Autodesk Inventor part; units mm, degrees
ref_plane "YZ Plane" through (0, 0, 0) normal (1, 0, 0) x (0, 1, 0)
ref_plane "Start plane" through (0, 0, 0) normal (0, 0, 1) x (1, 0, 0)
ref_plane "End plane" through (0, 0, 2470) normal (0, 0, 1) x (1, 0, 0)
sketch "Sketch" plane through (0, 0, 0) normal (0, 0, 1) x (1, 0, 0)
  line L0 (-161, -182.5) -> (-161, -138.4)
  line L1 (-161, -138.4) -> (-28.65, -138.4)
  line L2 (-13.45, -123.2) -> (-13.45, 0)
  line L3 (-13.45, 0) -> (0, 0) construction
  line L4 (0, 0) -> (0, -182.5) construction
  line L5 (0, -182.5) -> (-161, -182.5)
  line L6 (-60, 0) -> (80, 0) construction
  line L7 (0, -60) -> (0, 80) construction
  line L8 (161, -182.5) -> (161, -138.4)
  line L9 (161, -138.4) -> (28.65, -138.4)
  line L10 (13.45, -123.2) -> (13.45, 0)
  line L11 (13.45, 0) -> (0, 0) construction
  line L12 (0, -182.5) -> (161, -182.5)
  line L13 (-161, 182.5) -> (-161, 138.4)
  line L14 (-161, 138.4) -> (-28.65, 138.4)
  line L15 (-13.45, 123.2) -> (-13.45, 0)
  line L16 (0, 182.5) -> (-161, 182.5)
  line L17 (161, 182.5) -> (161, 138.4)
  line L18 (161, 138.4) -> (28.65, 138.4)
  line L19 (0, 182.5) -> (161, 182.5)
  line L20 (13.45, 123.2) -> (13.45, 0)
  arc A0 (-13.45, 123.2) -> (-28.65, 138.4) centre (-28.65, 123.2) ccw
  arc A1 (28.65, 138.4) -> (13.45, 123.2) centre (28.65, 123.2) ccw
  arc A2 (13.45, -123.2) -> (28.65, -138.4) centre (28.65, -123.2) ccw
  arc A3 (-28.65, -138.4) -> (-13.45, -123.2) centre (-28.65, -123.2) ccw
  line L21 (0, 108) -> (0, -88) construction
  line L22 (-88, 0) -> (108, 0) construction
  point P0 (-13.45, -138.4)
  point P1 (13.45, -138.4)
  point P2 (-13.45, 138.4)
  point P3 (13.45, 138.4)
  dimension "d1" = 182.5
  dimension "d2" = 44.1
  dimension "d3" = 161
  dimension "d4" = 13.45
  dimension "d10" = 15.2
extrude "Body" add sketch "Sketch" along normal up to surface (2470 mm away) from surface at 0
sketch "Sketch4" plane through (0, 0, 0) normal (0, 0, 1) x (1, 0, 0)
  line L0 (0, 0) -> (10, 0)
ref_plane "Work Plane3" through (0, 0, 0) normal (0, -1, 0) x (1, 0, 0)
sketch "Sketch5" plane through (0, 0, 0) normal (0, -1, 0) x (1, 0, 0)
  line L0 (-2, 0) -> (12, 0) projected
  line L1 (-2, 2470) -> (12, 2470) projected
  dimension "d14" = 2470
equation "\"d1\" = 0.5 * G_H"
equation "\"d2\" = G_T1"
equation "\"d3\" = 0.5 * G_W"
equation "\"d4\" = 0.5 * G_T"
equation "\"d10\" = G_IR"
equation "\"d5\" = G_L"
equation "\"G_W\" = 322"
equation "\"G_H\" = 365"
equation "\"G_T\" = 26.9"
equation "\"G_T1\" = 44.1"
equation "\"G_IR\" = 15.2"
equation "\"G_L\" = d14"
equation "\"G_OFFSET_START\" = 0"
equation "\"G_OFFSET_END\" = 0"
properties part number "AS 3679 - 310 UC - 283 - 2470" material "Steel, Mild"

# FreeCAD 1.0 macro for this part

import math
import FreeCAD as App
import Part
import Sketcher

V = App.Vector

doc = App.newDocument("Part")
body = doc.addObject("PartDesign::Body", "Body")

# Sketch on XY plane
sketch1 = doc.addObject("Sketcher::SketchObject", "Sketch")
body.addObject(sketch1)
sketch1.AttachmentSupport = (doc.XY_Plane, [""])
sketch1.MapMode = "FlatFace"
sketch1.addGeometry([
    Part.LineSegment(V(-161, -138.4, 0), V(-161, -182.5, 0)),  # 0
    Part.LineSegment(V(-161, -182.5, 0), V(161, -182.5, 0)),  # 1
    Part.LineSegment(V(161, -182.5, 0), V(161, -138.4, 0)),  # 2
    Part.LineSegment(V(161, -138.4, 0), V(28.65, -138.4, 0)),  # 3
    Part.ArcOfCircle(Part.Circle(V(28.65, -123.2, 0), V(0, 0, 1), 15.2), math.radians(180), math.radians(270)),  # 4
    Part.LineSegment(V(13.45, -123.2, 0), V(13.45, 123.2, 0)),  # 5
    Part.ArcOfCircle(Part.Circle(V(28.65, 123.2, 0), V(0, 0, 1), 15.2), math.radians(90), math.radians(180)),  # 6
    Part.LineSegment(V(28.65, 138.4, 0), V(161, 138.4, 0)),  # 7
    Part.LineSegment(V(161, 138.4, 0), V(161, 182.5, 0)),  # 8
    Part.LineSegment(V(161, 182.5, 0), V(-161, 182.5, 0)),  # 9
    Part.LineSegment(V(-161, 182.5, 0), V(-161, 138.4, 0)),  # 10
    Part.LineSegment(V(-161, 138.4, 0), V(-28.65, 138.4, 0)),  # 11
    Part.ArcOfCircle(Part.Circle(V(-28.65, 123.2, 0), V(0, 0, 1), 15.2), math.radians(0), math.radians(90)),  # 12
    Part.LineSegment(V(-13.45, 123.2, 0), V(-13.45, -123.2, 0)),  # 13
    Part.ArcOfCircle(Part.Circle(V(-28.65, -123.2, 0), V(0, 0, 1), 15.2), math.radians(-90), math.radians(0)),  # 14
    Part.LineSegment(V(-28.65, -138.4, 0), V(-161, -138.4, 0)),  # 15
], False)
sketch1.addConstraint([
    Sketcher.Constraint("Coincident", 0, 2, 1, 1),
    Sketcher.Constraint("Coincident", 1, 2, 2, 1),
    Sketcher.Constraint("Coincident", 2, 2, 3, 1),
    Sketcher.Constraint("Tangent", 3, 2, 4, 2),
    Sketcher.Constraint("Tangent", 4, 1, 5, 1),
    Sketcher.Constraint("Tangent", 5, 2, 6, 2),
    Sketcher.Constraint("Tangent", 6, 1, 7, 1),
    Sketcher.Constraint("Coincident", 7, 2, 8, 1),
    Sketcher.Constraint("Coincident", 8, 2, 9, 1),
    Sketcher.Constraint("Coincident", 9, 2, 10, 1),
    Sketcher.Constraint("Coincident", 10, 2, 11, 1),
    Sketcher.Constraint("Tangent", 11, 2, 12, 2),
    Sketcher.Constraint("Tangent", 12, 1, 13, 1),
    Sketcher.Constraint("Tangent", 13, 2, 14, 2),
    Sketcher.Constraint("Tangent", 14, 1, 15, 1),
    Sketcher.Constraint("Coincident", 15, 2, 0, 1),
    Sketcher.Constraint("Vertical", 0),
    Sketcher.Constraint("Horizontal", 1),
    Sketcher.Constraint("Vertical", 2),
    Sketcher.Constraint("Horizontal", 3),
    Sketcher.Constraint("Vertical", 5),
    Sketcher.Constraint("Horizontal", 7),
    Sketcher.Constraint("Vertical", 8),
    Sketcher.Constraint("Horizontal", 9),
    Sketcher.Constraint("Vertical", 10),
    Sketcher.Constraint("Horizontal", 11),
    Sketcher.Constraint("Vertical", 13),
    Sketcher.Constraint("Horizontal", 15),
    Sketcher.Constraint("Equal", 4, 6),
    Sketcher.Constraint("Equal", 6, 12),
    Sketcher.Constraint("Equal", 12, 14),
    Sketcher.Constraint("Symmetric", 4, 3, 12, 3, -1, 1),
    Sketcher.Constraint("Symmetric", 0, 2, 8, 2, -1, 1),
    Sketcher.Constraint("Symmetric", 7, 2, 10, 2, -2),
    Sketcher.Constraint("Symmetric", 2, 2, 15, 2, -2),
    Sketcher.Constraint("Radius", 4, 15.2),
    Sketcher.Constraint("DistanceY", 0, 2, 0, 1, 44.1),
    Sketcher.Constraint("DistanceX", 0, 2, -1, 1, 161.0),
    Sketcher.Constraint("DistanceY", 0, 2, -1, 1, 182.5),
    Sketcher.Constraint("DistanceX", -1, 1, 4, 1, 13.45),
])
pad1 = doc.addObject("PartDesign::Pad", "Pad")
body.addObject(pad1)
pad1.Profile = sketch1
pad1.Length = 2470

doc.recompute()
